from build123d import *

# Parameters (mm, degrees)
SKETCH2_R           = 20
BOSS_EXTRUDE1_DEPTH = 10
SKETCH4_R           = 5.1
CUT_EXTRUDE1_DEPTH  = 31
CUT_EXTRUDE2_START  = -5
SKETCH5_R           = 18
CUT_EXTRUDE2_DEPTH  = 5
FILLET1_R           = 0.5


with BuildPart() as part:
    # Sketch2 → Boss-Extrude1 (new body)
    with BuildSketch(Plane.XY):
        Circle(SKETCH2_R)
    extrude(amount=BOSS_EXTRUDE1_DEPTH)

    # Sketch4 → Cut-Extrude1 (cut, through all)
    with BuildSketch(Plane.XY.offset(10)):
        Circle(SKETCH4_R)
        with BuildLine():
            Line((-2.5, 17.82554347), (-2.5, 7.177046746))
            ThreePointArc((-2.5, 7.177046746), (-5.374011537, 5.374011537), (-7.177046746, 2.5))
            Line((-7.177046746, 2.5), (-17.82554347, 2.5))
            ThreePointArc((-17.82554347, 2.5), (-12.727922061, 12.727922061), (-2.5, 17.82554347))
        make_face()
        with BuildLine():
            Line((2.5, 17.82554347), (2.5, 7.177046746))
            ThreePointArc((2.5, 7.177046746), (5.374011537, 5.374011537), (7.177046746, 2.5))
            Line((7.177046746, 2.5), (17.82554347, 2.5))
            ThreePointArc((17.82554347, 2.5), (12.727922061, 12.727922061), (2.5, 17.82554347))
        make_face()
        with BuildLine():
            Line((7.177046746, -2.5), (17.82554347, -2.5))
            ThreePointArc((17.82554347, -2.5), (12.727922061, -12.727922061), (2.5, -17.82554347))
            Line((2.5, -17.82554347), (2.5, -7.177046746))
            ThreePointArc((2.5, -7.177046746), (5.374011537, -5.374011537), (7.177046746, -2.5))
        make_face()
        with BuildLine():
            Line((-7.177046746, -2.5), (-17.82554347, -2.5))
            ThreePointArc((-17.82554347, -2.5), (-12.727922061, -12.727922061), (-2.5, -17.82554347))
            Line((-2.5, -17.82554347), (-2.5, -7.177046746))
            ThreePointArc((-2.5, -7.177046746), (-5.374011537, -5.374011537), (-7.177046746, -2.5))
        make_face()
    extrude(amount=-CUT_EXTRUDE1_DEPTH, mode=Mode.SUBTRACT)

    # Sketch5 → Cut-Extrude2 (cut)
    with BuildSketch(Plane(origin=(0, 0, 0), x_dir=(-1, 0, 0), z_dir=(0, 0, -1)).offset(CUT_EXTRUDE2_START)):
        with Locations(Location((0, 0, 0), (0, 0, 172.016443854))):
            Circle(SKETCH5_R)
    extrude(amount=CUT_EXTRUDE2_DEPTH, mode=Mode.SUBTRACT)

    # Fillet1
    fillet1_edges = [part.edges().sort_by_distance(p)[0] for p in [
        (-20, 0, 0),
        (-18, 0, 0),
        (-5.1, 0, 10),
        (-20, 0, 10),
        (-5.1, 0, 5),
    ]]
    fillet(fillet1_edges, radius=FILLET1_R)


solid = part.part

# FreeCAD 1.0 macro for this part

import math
import FreeCAD as App
import Part
import Sketcher
from FreeCAD import Vector


def edges_at(feature, points):
    """Names of the edges that pass closest to the given points."""
    edges = feature.Shape.Edges
    near = lambda p: min(range(len(edges)), key=lambda i: edges[i].distToShape(Part.Vertex(*p))[0])
    return sorted({f"Edge{near(p) + 1}" for p in points})

doc = App.newDocument("Part")
body = doc.addObject("PartDesign::Body", "Body")

sketch1 = body.newObject("Sketcher::SketchObject", "Sketch")
sketch1.AttachmentSupport = (doc.getObject("XY_Plane"), [""])
sketch1.MapMode = "FlatFace"
sketch1.addGeometry(Part.Circle(Vector(0, 0, 0), Vector(0, 0, 1), 20), False)
sketch1.addConstraint(Sketcher.Constraint("Coincident", 0, 3, -1, 1))
sketch1.addConstraint(Sketcher.Constraint("Diameter", 0, 40.0))
pad1 = body.newObject("PartDesign::Pad", "Pad")
pad1.Profile = sketch1
pad1.Length = 10

sketch2 = body.newObject("Sketcher::SketchObject", "Sketch001")
sketch2.AttachmentSupport = (doc.getObject("XY_Plane"), [""])
sketch2.MapMode = "FlatFace"
sketch2.AttachmentOffset = App.Placement(Vector(0, 0, 10), App.Rotation())
sketch2.addGeometry(Part.Circle(Vector(0, 0, 0), Vector(0, 0, 1), 5), False)
sketch2.addGeometry(Part.LineSegment(Vector(-2, 7, 0), Vector(-2, 18, 0)), False)
sketch2.addGeometry(Part.ArcOfCircle(Part.Circle(Vector(0, 0, 0), Vector(0, 0, 1), 18), math.radians(98), math.radians(172)), False)
sketch2.addGeometry(Part.LineSegment(Vector(-18, 2, 0), Vector(-7, 2, 0)), False)
sketch2.addGeometry(Part.ArcOfCircle(Part.Circle(Vector(0, 0, 0), Vector(0, 0, 1), 8), math.radians(109), math.radians(161)), False)
sketch2.addGeometry(Part.LineSegment(Vector(2, 18, 0), Vector(2, 7, 0)), False)
sketch2.addGeometry(Part.ArcOfCircle(Part.Circle(Vector(0, 0, 0), Vector(0, 0, 1), 8), math.radians(19), math.radians(71)), False)
sketch2.addGeometry(Part.LineSegment(Vector(7, 2, 0), Vector(18, 2, 0)), False)
sketch2.addGeometry(Part.ArcOfCircle(Part.Circle(Vector(0, 0, 0), Vector(0, 0, 1), 18), math.radians(8), math.radians(82)), False)
sketch2.addGeometry(Part.LineSegment(Vector(18, -2, 0), Vector(7, -2, 0)), False)
sketch2.addGeometry(Part.ArcOfCircle(Part.Circle(Vector(0, 0, 0), Vector(0, 0, 1), 8), math.radians(-71), math.radians(-19)), False)
sketch2.addGeometry(Part.LineSegment(Vector(2, -7, 0), Vector(2, -18, 0)), False)
sketch2.addGeometry(Part.ArcOfCircle(Part.Circle(Vector(0, 0, 0), Vector(0, 0, 1), 18), math.radians(-82), math.radians(-8)), False)
sketch2.addGeometry(Part.LineSegment(Vector(-7, -2, 0), Vector(-18, -2, 0)), False)
sketch2.addGeometry(Part.ArcOfCircle(Part.Circle(Vector(0, 0, 0), Vector(0, 0, 1), 18), math.radians(-172), math.radians(-98)), False)
sketch2.addGeometry(Part.LineSegment(Vector(-2, -18, 0), Vector(-2, -7, 0)), False)
sketch2.addGeometry(Part.ArcOfCircle(Part.Circle(Vector(0, 0, 0), Vector(0, 0, 1), 8), math.radians(-161), math.radians(-109)), False)
sketch2.addConstraint(Sketcher.Constraint("Coincident", 1, 2, 2, 1))
sketch2.addConstraint(Sketcher.Constraint("Coincident", 2, 2, 3, 1))
sketch2.addConstraint(Sketcher.Constraint("Coincident", 3, 2, 4, 2))
sketch2.addConstraint(Sketcher.Constraint("Coincident", 4, 1, 1, 1))
sketch2.addConstraint(Sketcher.Constraint("Coincident", 5, 2, 6, 2))
sketch2.addConstraint(Sketcher.Constraint("Coincident", 6, 1, 7, 1))
sketch2.addConstraint(Sketcher.Constraint("Coincident", 7, 2, 8, 1))
sketch2.addConstraint(Sketcher.Constraint("Coincident", 8, 2, 5, 1))
sketch2.addConstraint(Sketcher.Constraint("Coincident", 9, 2, 10, 2))
sketch2.addConstraint(Sketcher.Constraint("Coincident", 10, 1, 11, 1))
sketch2.addConstraint(Sketcher.Constraint("Coincident", 11, 2, 12, 1))
sketch2.addConstraint(Sketcher.Constraint("Coincident", 12, 2, 9, 1))
sketch2.addConstraint(Sketcher.Constraint("Coincident", 13, 2, 14, 1))
sketch2.addConstraint(Sketcher.Constraint("Coincident", 14, 2, 15, 1))
sketch2.addConstraint(Sketcher.Constraint("Coincident", 15, 2, 16, 2))
sketch2.addConstraint(Sketcher.Constraint("Coincident", 16, 1, 13, 1))
sketch2.addConstraint(Sketcher.Constraint("Vertical", 1))
sketch2.addConstraint(Sketcher.Constraint("Horizontal", 3))
sketch2.addConstraint(Sketcher.Constraint("Vertical", 5))
sketch2.addConstraint(Sketcher.Constraint("Horizontal", 7))
sketch2.addConstraint(Sketcher.Constraint("Horizontal", 9))
sketch2.addConstraint(Sketcher.Constraint("Vertical", 11))
sketch2.addConstraint(Sketcher.Constraint("Horizontal", 13))
sketch2.addConstraint(Sketcher.Constraint("Vertical", 15))
sketch2.addConstraint(Sketcher.Constraint("Coincident", 0, 3, -1, 1))
sketch2.addConstraint(Sketcher.Constraint("Coincident", 2, 3, -1, 1))
sketch2.addConstraint(Sketcher.Constraint("Coincident", 4, 3, -1, 1))
sketch2.addConstraint(Sketcher.Constraint("Coincident", 6, 3, -1, 1))
sketch2.addConstraint(Sketcher.Constraint("Coincident", 8, 3, -1, 1))
sketch2.addConstraint(Sketcher.Constraint("Coincident", 10, 3, -1, 1))
sketch2.addConstraint(Sketcher.Constraint("Coincident", 12, 3, -1, 1))
sketch2.addConstraint(Sketcher.Constraint("Coincident", 14, 3, -1, 1))
sketch2.addConstraint(Sketcher.Constraint("Coincident", 16, 3, -1, 1))
sketch2.addConstraint(Sketcher.Constraint("Equal", 4, 6))
sketch2.addConstraint(Sketcher.Constraint("Equal", 2, 8))
sketch2.addConstraint(Sketcher.Constraint("Equal", 6, 10))
sketch2.addConstraint(Sketcher.Constraint("Equal", 8, 12))
sketch2.addConstraint(Sketcher.Constraint("Equal", 12, 14))
sketch2.addConstraint(Sketcher.Constraint("Equal", 10, 16))
sketch2.addConstraint(Sketcher.Constraint("Horizontal", 4, 1, 5, 2))
sketch2.addConstraint(Sketcher.Constraint("Horizontal", 3, 2, 6, 1))
sketch2.addConstraint(Sketcher.Constraint("Horizontal", 12, 2, 13, 2))
sketch2.addConstraint(Sketcher.Constraint("Horizontal", 11, 2, 14, 2))
sketch2.addConstraint(Sketcher.Constraint("Vertical", 6, 1, 9, 2))
sketch2.addConstraint(Sketcher.Constraint("Vertical", 8, 2, 10, 1))
sketch2.addConstraint(Sketcher.Constraint("Equal", 13, 1))
sketch2.addConstraint(Sketcher.Constraint("Radius", 2, 18.0))
sketch2.addConstraint(Sketcher.Constraint("Diameter", 0, 10.2))
sketch2.addConstraint(Sketcher.Constraint("Radius", 4, 7.6))
sketch2.addConstraint(Sketcher.Constraint("DistanceX", 4, 1, 5, 2, 5.0))
pocket1 = body.newObject("PartDesign::Pocket", "Pocket")
pocket1.Profile = sketch2
pocket1.Type = "ThroughAll"

sketch3 = body.newObject("Sketcher::SketchObject", "Sketch002")
sketch3.AttachmentSupport = (doc.getObject("XY_Plane"), [""])
sketch3.MapMode = "FlatFace"
sketch3.AttachmentOffset = App.Placement(Vector(0, 0, 5), App.Rotation())
sketch3.addGeometry(Part.Circle(Vector(0, 0, 0), Vector(0, 0, 1), 18), False)
sketch3.addConstraint(Sketcher.Constraint("Coincident", 0, 3, -1, 1))
sketch3.addConstraint(Sketcher.Constraint("Diameter", 0, 36.0))
pocket2 = body.newObject("PartDesign::Pocket", "Pocket001")
pocket2.Profile = sketch3
pocket2.Length = 5
doc.recompute()

fillet = body.newObject("PartDesign::Fillet", "Fillet")
fillet.Base = (pocket2, edges_at(pocket2, [
    (-20, 0, 0),
    (-18, 0, 0),
    (-5.1, 0, 10),
    (-20, 0, 10),
    (-5.1, 0, 5),
]))
fillet.Radius = 0.5

doc.recompute()
